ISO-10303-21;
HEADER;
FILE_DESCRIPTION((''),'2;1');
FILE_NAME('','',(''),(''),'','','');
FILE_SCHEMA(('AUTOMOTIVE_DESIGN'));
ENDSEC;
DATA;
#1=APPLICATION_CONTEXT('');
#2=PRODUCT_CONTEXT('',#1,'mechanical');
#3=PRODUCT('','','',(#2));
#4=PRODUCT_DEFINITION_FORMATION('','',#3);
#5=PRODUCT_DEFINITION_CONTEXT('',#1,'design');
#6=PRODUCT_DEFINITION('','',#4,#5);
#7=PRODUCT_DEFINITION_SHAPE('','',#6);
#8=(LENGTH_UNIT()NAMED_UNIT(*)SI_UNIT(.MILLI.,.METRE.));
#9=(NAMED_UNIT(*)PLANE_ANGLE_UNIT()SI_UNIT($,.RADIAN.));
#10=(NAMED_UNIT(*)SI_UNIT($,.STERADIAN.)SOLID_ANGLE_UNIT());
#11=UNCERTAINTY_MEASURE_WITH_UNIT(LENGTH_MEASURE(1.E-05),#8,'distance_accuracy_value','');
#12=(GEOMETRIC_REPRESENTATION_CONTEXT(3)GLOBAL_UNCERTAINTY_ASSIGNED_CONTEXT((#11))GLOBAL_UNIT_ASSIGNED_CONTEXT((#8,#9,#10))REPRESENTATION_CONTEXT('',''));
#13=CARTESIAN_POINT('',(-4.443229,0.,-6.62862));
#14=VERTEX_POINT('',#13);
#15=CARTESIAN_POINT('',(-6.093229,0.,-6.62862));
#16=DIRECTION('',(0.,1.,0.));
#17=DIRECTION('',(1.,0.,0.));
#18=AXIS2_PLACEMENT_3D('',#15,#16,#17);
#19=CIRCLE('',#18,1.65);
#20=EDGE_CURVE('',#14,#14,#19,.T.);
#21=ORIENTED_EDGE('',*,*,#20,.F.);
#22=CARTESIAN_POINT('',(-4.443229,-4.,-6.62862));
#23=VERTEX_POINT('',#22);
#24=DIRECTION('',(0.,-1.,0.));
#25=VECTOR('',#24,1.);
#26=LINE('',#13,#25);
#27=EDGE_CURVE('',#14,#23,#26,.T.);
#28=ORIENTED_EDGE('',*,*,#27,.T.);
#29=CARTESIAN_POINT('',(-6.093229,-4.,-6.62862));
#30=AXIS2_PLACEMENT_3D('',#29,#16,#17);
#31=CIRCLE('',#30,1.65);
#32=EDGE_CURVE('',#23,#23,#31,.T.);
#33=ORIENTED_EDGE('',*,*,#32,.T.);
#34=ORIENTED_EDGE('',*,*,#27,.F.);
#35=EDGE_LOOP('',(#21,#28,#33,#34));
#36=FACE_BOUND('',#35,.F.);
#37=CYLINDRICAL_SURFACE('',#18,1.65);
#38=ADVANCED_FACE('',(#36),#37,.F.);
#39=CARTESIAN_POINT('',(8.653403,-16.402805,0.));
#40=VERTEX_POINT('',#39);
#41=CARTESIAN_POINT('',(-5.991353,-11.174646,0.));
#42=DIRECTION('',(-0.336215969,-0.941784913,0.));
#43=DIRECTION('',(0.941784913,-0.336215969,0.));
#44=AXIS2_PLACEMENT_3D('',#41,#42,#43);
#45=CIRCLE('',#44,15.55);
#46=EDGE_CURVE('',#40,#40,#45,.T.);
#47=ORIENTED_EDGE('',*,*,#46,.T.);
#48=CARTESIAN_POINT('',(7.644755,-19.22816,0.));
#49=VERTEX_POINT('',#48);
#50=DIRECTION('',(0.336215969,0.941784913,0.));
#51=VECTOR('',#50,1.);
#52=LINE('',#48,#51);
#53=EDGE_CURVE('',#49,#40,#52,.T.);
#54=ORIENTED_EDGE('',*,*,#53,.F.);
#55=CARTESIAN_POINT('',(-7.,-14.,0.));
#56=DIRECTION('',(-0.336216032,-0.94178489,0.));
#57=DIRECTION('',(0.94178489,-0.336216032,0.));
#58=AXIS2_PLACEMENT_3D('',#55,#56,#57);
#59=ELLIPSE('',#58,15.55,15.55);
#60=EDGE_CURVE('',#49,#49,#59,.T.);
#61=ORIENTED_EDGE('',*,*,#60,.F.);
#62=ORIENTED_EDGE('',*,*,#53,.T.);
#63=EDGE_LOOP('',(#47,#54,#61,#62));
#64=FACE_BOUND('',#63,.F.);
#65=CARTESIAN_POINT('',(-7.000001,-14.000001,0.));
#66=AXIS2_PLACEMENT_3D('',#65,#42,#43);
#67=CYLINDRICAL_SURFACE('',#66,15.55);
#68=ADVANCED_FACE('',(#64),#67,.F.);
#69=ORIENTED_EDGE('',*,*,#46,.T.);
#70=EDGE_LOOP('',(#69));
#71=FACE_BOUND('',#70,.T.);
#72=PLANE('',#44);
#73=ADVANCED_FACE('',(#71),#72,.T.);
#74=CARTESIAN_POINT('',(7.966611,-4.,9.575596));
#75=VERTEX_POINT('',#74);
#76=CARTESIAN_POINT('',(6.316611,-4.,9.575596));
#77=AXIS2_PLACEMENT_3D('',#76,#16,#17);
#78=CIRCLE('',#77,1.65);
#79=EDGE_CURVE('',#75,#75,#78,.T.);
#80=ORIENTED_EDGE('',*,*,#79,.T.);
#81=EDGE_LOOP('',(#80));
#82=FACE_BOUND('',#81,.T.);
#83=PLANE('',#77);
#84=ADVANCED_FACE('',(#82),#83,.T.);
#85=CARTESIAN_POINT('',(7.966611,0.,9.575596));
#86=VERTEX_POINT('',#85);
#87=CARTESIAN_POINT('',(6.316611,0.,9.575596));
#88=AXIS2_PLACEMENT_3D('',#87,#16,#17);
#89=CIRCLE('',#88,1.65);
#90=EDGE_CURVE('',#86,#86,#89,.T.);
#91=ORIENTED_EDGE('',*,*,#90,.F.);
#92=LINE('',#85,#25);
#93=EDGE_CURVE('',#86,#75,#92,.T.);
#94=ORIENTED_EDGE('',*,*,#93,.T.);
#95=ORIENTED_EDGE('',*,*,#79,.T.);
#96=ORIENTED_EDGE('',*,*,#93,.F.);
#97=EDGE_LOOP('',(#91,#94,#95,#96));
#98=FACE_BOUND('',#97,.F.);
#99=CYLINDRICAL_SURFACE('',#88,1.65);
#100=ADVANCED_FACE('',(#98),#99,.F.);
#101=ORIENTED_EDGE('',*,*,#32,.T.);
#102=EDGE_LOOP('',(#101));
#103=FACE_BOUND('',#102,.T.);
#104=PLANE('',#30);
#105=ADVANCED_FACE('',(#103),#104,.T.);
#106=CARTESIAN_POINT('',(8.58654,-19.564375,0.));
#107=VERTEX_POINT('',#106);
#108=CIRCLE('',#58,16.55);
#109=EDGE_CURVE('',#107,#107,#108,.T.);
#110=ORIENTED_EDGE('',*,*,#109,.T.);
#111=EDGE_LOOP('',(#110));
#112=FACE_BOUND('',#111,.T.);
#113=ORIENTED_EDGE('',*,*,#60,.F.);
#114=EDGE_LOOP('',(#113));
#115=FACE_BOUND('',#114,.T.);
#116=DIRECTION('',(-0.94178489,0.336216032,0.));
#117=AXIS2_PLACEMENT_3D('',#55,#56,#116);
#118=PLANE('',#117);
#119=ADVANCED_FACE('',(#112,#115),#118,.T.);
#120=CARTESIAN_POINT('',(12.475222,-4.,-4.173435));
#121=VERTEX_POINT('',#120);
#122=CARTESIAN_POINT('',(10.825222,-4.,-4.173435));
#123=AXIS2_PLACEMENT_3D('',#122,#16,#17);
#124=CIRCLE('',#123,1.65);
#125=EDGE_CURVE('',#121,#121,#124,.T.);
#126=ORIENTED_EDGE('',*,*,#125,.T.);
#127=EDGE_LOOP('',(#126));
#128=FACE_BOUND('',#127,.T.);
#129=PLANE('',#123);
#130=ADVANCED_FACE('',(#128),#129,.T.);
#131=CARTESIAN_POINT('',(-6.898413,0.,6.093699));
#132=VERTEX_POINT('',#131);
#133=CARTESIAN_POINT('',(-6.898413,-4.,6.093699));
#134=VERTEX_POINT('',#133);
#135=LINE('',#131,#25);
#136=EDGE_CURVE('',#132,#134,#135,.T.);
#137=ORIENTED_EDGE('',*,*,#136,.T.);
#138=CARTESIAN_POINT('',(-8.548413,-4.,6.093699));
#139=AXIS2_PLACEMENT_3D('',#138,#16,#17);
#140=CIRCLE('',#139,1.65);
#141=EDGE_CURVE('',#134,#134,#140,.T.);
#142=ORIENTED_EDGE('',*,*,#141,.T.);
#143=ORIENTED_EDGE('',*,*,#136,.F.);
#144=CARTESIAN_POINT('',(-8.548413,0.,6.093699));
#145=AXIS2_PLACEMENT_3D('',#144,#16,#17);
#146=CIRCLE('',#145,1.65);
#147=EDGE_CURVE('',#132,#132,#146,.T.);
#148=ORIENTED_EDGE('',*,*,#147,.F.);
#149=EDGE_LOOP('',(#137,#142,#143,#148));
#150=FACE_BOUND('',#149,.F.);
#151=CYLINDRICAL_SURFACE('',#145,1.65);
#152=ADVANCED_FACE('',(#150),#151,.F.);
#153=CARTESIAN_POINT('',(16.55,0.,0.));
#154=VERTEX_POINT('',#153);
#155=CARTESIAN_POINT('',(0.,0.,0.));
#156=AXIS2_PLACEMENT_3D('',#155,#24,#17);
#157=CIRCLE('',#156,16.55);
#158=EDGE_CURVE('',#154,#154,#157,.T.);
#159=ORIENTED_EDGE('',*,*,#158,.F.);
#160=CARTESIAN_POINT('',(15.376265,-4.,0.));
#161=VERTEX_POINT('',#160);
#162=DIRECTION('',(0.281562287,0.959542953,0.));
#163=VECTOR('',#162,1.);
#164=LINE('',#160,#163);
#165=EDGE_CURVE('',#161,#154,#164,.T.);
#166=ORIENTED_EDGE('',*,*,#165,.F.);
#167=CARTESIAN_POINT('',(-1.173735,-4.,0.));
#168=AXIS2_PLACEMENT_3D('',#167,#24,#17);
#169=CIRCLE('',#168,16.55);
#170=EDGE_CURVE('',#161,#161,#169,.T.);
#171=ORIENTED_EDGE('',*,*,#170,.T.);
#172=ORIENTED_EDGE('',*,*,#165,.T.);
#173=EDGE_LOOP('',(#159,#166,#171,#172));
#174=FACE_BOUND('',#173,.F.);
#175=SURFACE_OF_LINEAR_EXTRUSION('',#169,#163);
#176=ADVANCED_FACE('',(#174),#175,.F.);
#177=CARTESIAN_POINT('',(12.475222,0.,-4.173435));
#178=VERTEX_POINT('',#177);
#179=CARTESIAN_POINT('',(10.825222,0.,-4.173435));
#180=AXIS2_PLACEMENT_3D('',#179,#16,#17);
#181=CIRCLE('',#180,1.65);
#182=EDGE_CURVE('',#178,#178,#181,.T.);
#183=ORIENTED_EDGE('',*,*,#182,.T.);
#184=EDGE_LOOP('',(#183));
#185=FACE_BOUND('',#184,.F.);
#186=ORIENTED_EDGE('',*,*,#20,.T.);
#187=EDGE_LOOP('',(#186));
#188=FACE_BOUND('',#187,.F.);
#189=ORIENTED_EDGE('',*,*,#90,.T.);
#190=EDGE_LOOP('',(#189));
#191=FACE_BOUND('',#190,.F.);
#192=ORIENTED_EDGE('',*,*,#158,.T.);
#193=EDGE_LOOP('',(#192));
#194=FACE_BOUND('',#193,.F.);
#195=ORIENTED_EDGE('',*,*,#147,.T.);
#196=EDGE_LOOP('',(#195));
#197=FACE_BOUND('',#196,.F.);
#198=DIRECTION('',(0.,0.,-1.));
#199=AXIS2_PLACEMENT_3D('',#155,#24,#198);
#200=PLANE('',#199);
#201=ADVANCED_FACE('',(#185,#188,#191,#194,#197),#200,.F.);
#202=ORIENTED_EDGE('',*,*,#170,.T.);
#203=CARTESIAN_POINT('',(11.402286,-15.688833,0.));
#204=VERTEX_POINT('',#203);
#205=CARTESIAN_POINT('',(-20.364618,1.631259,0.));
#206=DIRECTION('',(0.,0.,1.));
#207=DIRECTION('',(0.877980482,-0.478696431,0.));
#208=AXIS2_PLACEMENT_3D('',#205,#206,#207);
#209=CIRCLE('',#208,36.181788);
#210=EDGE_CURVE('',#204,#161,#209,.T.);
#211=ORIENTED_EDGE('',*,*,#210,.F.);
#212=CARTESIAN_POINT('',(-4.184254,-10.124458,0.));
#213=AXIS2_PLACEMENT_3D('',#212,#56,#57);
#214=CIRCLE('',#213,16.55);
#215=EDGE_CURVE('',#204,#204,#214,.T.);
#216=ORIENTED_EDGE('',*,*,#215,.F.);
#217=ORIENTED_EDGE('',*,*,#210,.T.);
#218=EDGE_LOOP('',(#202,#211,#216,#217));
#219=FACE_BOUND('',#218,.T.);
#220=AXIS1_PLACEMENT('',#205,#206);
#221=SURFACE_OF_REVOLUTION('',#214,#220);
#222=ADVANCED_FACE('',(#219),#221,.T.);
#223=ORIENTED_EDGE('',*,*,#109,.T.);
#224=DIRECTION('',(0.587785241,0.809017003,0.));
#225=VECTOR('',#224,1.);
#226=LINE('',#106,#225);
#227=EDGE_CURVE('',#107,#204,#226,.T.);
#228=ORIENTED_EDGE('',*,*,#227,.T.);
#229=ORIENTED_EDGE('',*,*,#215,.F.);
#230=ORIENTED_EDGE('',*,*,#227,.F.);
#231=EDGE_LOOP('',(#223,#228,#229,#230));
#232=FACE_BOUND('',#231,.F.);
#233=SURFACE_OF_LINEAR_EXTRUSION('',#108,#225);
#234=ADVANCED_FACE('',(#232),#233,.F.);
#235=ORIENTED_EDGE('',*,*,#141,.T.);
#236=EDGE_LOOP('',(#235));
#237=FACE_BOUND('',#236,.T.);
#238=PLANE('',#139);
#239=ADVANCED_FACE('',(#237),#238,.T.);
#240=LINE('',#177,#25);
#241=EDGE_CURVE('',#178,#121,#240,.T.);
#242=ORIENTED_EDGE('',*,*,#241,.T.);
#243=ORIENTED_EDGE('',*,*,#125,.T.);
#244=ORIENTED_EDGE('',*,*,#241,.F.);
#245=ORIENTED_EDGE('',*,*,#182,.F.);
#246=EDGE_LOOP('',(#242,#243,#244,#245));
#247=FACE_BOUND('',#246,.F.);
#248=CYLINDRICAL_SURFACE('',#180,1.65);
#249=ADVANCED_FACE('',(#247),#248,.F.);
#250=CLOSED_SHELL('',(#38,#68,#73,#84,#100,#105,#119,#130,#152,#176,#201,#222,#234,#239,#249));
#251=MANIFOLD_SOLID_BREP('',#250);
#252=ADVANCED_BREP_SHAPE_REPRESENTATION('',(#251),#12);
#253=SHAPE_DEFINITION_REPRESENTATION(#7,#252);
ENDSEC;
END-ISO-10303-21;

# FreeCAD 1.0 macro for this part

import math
import FreeCAD as App
import Part
import Sketcher
Q = App.Units.Quantity

doc = App.newDocument("Part")
body = doc.addObject("PartDesign::Body", "Body")

# Sketch on XZ plane
sketch1 = body.newObject("Sketcher::SketchObject", "Sketch")
sketch1.AttachmentSupport = (doc.getObject("XZ_Plane"), [""])
sketch1.MapMode = "FlatFace"
sketch1.addGeometry(Part.Circle(App.Vector(0, 0, 0), App.Vector(0, 0, 1), 17), False)
sketch1.addConstraint([
    Sketcher.Constraint("Coincident", 0, 3, -1, 1),
    Sketcher.Constraint("Diameter", 0, Q("33.1 mm")),
])

# Sketch on XY plane
sketch2 = body.newObject("Sketcher::SketchObject", "Sketch001")
sketch2.AttachmentSupport = (doc.getObject("XY_Plane"), [""])
sketch2.MapMode = "FlatFace"
sketch2.addGeometry([
    Part.LineSegment(App.Vector(-7, -14, 0), App.Vector(-4.2, -10.1, 0)),
    Part.ArcOfCircle(Part.Circle(App.Vector(-20.4, 1.6, 0), App.Vector(0, 0, 1), 20), math.radians(-36), math.radians(-16.35)),
    Part.LineSegment(App.Vector(-1.2, -4, 0), App.Vector(0, 0, 0)),
], False)
sketch2.addConstraint([
    Sketcher.Constraint("Tangent", 0, 2, 1, 1),
    Sketcher.Constraint("Tangent", 1, 2, 2, 1),
    Sketcher.Constraint("Coincident", 2, 2, -1, 1),
    Sketcher.Constraint("Angle", 0, Q("54.000001 deg")),
    Sketcher.Constraint("DistanceX", 0, 1, -1, 1, Q("7 mm")),
    Sketcher.Constraint("DistanceY", 0, 1, -1, 1, Q("14 mm")),
    Sketcher.Constraint("DistanceY", 1, 2, -1, 1, Q("4 mm")),
    Sketcher.Constraint("Radius", 1, Q("20.000026 mm")),
])
doc.recompute()

additivepipe = body.newObject("PartDesign::AdditivePipe", "AdditivePipe")
additivepipe.Profile = sketch1
additivepipe.Spine = (sketch2, ["Edge1", "Edge2", "Edge3"])

# Sketch on XZ plane
sketch3 = body.newObject("Sketcher::SketchObject", "Sketch002")
sketch3.AttachmentSupport = (doc.getObject("XZ_Plane"), [""])
sketch3.MapMode = "FlatFace"
sketch3.addGeometry([
    Part.Circle(App.Vector(-8.5, 6.1, 0), App.Vector(0, 0, 1), 1.6),
    Part.Circle(App.Vector(-6.1, -6.6, 0), App.Vector(0, 0, 1), 1.6),
    Part.Circle(App.Vector(10.8, -4.2, 0), App.Vector(0, 0, 1), 1.6),
    Part.Circle(App.Vector(6.3, 9.6, 0), App.Vector(0, 0, 1), 1.6),
], False)
sketch3.addConstraint([
    Sketcher.Constraint("Equal", 0, 1),
    Sketcher.Constraint("Equal", 1, 2),
    Sketcher.Constraint("Equal", 2, 3),
    Sketcher.Constraint("Diameter", 0, Q("3.3 mm")),
    Sketcher.Constraint("DistanceY", -1, 1, 0, 3, Q("6.093699 mm")),
    Sketcher.Constraint("DistanceX", 1, 3, -1, 1, Q("6.093229 mm")),
    Sketcher.Constraint("DistanceY", 1, 3, -1, 1, Q("6.62862 mm")),
    Sketcher.Constraint("DistanceX", -1, 1, 3, 3, Q("6.316611 mm")),
    Sketcher.Constraint("DistanceX", 1, 3, 2, 3, Q("16.918451 mm")),
    Sketcher.Constraint("DistanceY", 2, 3, 3, 3, Q("13.749031 mm")),
    Sketcher.Constraint("DistanceX", 0, 3, -1, 1, Q("8.548413 mm")),
    Sketcher.Constraint("DistanceY", 2, 3, -1, 1, Q("4.173435 mm")),
])
pocket1 = body.newObject("PartDesign::Pocket", "Pocket")
pocket1.Profile = sketch3
pocket1.Length = 4
pocket1.Reversed = True

# Sketch on an angled plane
sketch4 = body.newObject("Sketcher::SketchObject", "Sketch003")
sketch4.Placement = App.Placement(App.Vector(-5.2243, -14.633924, 0), App.Rotation(App.Vector(0.941784913, -0.336215969, 0), App.Vector(0, 0, 1), App.Vector(-0.336215969, -0.941784913, 0), "ZXY"))
sketch4.addGeometry(Part.Circle(App.Vector(-2, 0, 0), App.Vector(0, 0, 1), 16), False)
sketch4.addConstraint([
    Sketcher.Constraint("PointOnObject", 0, 3, -1),
    Sketcher.Constraint("Diameter", 0, Q("31.1 mm")),
    Sketcher.Constraint("DistanceX", 0, 3, -1, 1, Q("1.885463 mm")),
])
pocket2 = body.newObject("PartDesign::Pocket", "Pocket001")
pocket2.Profile = sketch4
pocket2.Length = 3

doc.recompute()
